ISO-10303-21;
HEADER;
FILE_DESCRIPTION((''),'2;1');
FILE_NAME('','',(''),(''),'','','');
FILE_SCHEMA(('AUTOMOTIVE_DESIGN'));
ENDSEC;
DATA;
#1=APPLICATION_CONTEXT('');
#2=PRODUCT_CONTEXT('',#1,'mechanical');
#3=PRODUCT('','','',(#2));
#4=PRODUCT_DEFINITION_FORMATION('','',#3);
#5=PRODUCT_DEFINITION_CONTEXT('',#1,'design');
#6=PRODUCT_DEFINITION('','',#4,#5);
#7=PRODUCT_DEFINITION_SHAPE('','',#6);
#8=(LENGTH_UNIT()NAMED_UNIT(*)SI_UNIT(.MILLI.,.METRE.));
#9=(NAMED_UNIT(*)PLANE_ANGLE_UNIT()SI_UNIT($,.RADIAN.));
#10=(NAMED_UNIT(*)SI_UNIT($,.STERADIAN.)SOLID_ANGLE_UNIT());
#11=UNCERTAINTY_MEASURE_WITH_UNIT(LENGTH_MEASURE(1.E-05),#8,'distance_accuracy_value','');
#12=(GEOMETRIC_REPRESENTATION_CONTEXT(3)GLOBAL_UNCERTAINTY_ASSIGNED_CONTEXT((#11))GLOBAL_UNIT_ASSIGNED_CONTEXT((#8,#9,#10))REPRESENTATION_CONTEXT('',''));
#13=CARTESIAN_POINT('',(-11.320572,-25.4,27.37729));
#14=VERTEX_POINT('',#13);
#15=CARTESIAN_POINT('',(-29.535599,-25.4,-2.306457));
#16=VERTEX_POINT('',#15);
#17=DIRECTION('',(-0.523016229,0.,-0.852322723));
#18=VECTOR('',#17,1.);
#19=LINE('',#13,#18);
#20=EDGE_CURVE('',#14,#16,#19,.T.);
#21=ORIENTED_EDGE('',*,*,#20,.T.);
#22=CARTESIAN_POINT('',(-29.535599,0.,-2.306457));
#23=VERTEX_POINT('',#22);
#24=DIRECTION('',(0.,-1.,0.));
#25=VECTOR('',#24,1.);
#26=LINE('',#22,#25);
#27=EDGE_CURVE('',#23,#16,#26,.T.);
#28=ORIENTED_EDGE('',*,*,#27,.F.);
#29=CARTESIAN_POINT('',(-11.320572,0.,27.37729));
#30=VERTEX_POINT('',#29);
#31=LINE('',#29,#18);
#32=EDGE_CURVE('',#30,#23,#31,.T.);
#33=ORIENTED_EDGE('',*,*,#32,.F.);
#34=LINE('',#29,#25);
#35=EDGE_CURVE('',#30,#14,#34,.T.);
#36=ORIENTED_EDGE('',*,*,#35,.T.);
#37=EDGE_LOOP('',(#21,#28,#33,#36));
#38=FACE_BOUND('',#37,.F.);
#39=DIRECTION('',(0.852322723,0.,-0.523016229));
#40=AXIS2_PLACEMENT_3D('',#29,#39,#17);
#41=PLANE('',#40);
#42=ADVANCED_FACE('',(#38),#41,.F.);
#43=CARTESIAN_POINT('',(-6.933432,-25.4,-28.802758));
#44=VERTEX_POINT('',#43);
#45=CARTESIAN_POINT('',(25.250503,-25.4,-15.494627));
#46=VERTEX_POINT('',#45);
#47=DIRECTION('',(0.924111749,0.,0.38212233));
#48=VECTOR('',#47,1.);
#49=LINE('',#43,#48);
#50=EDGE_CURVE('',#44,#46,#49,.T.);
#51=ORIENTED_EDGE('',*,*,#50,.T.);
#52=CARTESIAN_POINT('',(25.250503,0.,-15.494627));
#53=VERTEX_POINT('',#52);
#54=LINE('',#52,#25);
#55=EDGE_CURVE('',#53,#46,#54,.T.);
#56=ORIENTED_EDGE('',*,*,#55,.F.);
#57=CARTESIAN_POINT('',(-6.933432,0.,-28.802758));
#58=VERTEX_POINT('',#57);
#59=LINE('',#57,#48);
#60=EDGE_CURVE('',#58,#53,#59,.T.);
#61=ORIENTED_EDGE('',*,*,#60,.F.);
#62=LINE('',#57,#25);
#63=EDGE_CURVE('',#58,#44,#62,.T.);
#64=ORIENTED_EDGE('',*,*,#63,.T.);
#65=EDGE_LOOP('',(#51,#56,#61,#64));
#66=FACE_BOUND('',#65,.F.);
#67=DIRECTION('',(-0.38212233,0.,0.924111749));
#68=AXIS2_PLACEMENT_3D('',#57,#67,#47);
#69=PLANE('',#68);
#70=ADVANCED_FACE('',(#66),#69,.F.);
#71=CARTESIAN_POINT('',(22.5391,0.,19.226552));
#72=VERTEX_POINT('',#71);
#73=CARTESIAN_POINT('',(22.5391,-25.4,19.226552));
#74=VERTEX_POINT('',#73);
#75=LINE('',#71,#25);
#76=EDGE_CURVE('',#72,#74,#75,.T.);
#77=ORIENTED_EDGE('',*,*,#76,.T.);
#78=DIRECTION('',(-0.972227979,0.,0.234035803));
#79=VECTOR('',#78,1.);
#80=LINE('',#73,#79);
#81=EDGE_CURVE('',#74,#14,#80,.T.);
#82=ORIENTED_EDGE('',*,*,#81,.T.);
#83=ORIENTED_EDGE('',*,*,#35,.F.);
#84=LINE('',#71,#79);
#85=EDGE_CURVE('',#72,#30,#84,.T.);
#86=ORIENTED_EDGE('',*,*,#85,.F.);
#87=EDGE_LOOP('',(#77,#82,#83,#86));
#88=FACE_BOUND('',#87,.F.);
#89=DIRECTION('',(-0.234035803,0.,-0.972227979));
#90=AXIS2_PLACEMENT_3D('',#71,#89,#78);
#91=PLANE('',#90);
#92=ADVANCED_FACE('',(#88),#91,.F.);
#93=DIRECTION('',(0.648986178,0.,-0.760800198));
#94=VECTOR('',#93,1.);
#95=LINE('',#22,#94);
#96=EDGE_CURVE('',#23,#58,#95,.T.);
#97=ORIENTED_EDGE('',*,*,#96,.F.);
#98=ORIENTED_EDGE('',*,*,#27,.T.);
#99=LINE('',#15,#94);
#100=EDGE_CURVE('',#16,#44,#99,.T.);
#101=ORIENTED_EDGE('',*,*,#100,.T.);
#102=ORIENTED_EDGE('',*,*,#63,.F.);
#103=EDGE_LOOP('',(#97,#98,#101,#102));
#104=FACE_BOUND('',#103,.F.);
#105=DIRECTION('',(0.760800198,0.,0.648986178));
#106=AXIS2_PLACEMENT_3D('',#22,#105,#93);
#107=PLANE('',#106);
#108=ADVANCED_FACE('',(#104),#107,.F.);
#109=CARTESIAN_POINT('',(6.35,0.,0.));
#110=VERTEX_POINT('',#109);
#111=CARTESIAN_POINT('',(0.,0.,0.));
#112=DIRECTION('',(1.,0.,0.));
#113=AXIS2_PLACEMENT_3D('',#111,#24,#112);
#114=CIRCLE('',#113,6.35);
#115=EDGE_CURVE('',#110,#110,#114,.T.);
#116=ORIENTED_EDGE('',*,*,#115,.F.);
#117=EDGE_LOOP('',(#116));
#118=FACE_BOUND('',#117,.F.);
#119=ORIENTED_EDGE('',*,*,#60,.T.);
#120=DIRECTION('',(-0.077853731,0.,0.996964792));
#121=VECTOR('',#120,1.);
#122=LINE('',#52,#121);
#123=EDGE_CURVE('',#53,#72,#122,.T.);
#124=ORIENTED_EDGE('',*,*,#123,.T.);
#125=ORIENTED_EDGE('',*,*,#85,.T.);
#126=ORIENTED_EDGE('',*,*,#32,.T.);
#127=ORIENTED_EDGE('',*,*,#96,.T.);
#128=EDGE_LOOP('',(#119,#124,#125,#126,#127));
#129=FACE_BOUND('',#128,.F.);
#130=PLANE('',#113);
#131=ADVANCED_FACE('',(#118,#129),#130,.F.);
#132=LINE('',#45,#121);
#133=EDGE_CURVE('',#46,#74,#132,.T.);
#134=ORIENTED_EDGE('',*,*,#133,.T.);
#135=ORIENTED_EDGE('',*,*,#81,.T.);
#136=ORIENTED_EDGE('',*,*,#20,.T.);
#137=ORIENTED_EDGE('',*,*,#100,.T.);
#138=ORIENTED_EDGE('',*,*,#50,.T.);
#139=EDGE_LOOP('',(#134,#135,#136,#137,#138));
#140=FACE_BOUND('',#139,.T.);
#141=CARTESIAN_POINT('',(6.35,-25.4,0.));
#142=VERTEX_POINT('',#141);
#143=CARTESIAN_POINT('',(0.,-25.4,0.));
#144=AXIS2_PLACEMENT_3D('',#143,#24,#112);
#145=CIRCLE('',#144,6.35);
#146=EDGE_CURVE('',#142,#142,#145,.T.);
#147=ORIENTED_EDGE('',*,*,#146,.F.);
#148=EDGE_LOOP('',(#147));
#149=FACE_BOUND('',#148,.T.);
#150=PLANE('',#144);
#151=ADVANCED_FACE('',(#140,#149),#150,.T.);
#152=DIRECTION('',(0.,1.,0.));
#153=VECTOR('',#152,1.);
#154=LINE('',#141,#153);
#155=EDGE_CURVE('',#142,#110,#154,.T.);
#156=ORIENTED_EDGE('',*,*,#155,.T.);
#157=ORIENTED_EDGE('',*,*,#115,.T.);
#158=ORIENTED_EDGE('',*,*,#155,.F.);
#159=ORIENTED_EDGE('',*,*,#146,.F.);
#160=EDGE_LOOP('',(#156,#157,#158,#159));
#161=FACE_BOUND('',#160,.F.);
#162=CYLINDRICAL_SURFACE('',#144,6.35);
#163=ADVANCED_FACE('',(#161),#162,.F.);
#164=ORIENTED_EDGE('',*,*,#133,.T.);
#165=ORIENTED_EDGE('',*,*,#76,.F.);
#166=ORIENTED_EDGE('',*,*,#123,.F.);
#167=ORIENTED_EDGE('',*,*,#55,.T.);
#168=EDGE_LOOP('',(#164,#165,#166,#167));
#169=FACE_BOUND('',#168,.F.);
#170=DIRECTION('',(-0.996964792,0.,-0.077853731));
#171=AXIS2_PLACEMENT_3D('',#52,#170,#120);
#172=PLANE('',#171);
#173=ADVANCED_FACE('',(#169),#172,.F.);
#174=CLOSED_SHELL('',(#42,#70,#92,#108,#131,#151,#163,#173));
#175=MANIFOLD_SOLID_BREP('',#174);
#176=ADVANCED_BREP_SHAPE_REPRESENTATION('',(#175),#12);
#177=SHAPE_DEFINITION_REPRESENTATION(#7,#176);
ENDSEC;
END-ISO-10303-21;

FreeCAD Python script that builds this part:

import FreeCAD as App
import Part
import Sketcher
Q = App.Units.Quantity

doc = App.newDocument("Part")
body = doc.addObject("PartDesign::Body", "Body")

# Sketch on XZ plane
sketch1 = body.newObject("Sketcher::SketchObject", "Sketch")
sketch1.AttachmentSupport = (doc.getObject("XZ_Plane"), [""])
sketch1.MapMode = "FlatFace"
sketch1.addGeometry([
    Part.LineSegment(App.Vector(-11, 27, 0), App.Vector(-30, -2, 0)),  # 0
    Part.LineSegment(App.Vector(-30, -2, 0), App.Vector(-7, -29, 0)),  # 1
    Part.LineSegment(App.Vector(-7, -29, 0), App.Vector(25, -15, 0)),  # 2
    Part.LineSegment(App.Vector(25, -15, 0), App.Vector(23, 19, 0)),  # 3
    Part.LineSegment(App.Vector(23, 19, 0), App.Vector(-11, 27, 0)),  # 4
], False)
sketch1.addConstraint([
    Sketcher.Constraint("Coincident", 0, 2, 1, 1),
    Sketcher.Constraint("Coincident", 1, 2, 2, 1),
    Sketcher.Constraint("Coincident", 2, 2, 3, 1),
    Sketcher.Constraint("Coincident", 3, 2, 4, 1),
    Sketcher.Constraint("Coincident", 4, 2, 0, 1),
    Sketcher.Constraint("Equal", 0, 1),
    Sketcher.Constraint("Equal", 1, 2),
    Sketcher.Constraint("Equal", 2, 3),
    Sketcher.Constraint("Equal", 3, 4),
    Sketcher.Constraint("DistanceX", 0, 2, -1, 1, Q("29.535599 mm")),
    Sketcher.Constraint("DistanceX", -1, 1, 3, 2, Q("22.5391 mm")),
    Sketcher.Constraint("DistanceY", 1, 2, 0, 2, Q("26.496301 mm")),
    Sketcher.Constraint("DistanceX", 1, 2, -1, 1, Q("6.933432 mm")),
    Sketcher.Constraint("DistanceY", 1, 2, -1, 1, Q("28.802758 mm")),
    Sketcher.Constraint("DistanceY", -1, 1, 4, 2, Q("27.37729 mm")),
])
pad1 = body.newObject("PartDesign::Pad", "Pad")
pad1.Profile = sketch1
pad1.Length = Q("1 in")

# Sketch on XZ plane
sketch2 = body.newObject("Sketcher::SketchObject", "Sketch001")
sketch2.AttachmentSupport = (doc.getObject("XZ_Plane"), [""])
sketch2.MapMode = "FlatFace"
sketch2.AttachmentOffset = App.Placement(App.Vector(0, 0, 1 * 25.4), App.Rotation())
sketch2.addGeometry(Part.Circle(App.Vector(0, 0, 0), App.Vector(0, 0, 1), 6), False)
sketch2.addConstraint([
    Sketcher.Constraint("Coincident", 0, 3, -1, 1),
    Sketcher.Constraint("Diameter", 0, Q("0.5 in")),
])
pocket1 = body.newObject("PartDesign::Pocket", "Pocket")
pocket1.Profile = sketch2
pocket1.Length = Q("1 in")

doc.recompute()
